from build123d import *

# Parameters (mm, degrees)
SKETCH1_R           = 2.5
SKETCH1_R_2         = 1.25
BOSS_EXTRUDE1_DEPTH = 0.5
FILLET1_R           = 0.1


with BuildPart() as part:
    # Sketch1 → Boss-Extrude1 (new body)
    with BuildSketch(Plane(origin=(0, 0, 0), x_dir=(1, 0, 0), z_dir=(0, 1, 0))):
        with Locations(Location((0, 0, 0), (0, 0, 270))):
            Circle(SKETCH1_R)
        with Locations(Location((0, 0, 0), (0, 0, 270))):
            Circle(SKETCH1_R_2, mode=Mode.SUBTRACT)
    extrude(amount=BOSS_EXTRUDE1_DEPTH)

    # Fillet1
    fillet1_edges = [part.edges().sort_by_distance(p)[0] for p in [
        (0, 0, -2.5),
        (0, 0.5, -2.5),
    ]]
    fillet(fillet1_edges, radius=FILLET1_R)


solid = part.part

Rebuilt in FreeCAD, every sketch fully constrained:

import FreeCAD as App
import Part
import Sketcher


def edges_at(feature, points):
    """Names of the edges that pass closest to the given points."""
    edges = feature.Shape.Edges
    near = lambda p: min(range(len(edges)), key=lambda i: edges[i].distToShape(Part.Vertex(*p))[0])
    return sorted({f"Edge{near(p) + 1}" for p in points})

doc = App.newDocument("Part")
body = doc.addObject("PartDesign::Body", "Body")

# Sketch on XZ plane
sketch1 = body.newObject("Sketcher::SketchObject", "Sketch")
sketch1.AttachmentSupport = (doc.getObject("XZ_Plane"), [""])
sketch1.MapMode = "FlatFace"
sketch1.addGeometry([
    Part.Circle(App.Vector(0, 0, 0), App.Vector(0, 0, 1), 2.5),
    Part.Circle(App.Vector(0, 0, 0), App.Vector(0, 0, 1), 1.25),
], False)
sketch1.addConstraint([
    Sketcher.Constraint("Coincident", 0, 3, -1, 1),
    Sketcher.Constraint("Coincident", 1, 3, -1, 1),
    Sketcher.Constraint("Diameter", 0, 5.0),
    Sketcher.Constraint("Diameter", 1, 2.5),
])
pad1 = body.newObject("PartDesign::Pad", "Pad")
pad1.Profile = sketch1
pad1.Length = 0.5
pad1.Reversed = True
doc.recompute()

fillet = body.newObject("PartDesign::Fillet", "Fillet")
fillet.Base = (pad1, edges_at(pad1, [(0, 0, -2.5), (0, 0.5, -2.5)]))
fillet.Radius = 0.1

doc.recompute()
